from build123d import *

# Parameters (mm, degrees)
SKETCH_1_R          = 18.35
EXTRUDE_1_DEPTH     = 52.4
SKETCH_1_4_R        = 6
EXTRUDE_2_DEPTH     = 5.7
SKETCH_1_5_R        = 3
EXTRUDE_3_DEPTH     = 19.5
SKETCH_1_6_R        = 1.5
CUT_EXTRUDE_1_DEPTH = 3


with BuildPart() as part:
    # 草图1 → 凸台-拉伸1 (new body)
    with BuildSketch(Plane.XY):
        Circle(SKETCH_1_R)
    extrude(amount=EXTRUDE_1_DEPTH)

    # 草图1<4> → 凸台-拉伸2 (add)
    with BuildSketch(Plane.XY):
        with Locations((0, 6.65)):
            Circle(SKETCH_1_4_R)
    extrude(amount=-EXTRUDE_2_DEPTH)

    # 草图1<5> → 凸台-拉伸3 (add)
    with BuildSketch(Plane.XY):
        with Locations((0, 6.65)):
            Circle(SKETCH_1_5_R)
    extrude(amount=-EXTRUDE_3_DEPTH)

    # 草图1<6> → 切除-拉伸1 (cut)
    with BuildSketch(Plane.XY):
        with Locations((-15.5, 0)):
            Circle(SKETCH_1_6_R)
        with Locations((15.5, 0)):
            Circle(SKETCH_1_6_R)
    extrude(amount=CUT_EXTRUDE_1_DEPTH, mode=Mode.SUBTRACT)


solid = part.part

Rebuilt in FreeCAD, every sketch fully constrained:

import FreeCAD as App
import Part
import Sketcher

doc = App.newDocument("Part")
params = doc.addObject("Spreadsheet::Sheet", "Params")
for row, (alias, value) in enumerate([
    ("sketch1_diameter", "36.7 mm"),
    ("pad1_length", "52.4 mm"),
    ("sketch2_diameter", "12 mm"),
    ("pad2_length", "5.7 mm"),
    ("sketch3_diameter", "6 mm"),
    ("pad3_length", "19.5 mm"),
    ("sketch4_diameter", "3 mm"),
    ("pocket1_length", "3 mm"),
], start=1):
    params.set(f"A{row}", alias)
    params.set(f"B{row}", "=" + value)
    params.setAlias(f"B{row}", alias)

body = doc.addObject("PartDesign::Body", "Body")

# Sketch on XY plane
sketch1 = body.newObject("Sketcher::SketchObject", "Sketch")
sketch1.AttachmentSupport = (doc.getObject("XY_Plane"), [""])
sketch1.MapMode = "FlatFace"
sketch1.addGeometry(Part.Circle(App.Vector(0, 0, 0), App.Vector(0, 0, 1), 18), False)
sketch1.addConstraint([
    Sketcher.Constraint("Coincident", 0, 3, -1, 1),
    Sketcher.Constraint("Diameter", 0, 36.7),
])
sketch1.setExpression("Constraints[1]", "Params.sketch1_diameter")
pad1 = body.newObject("PartDesign::Pad", "Pad")
pad1.Profile = sketch1
pad1.setExpression("Length", "Params.pad1_length")

# Sketch on XY plane
sketch2 = body.newObject("Sketcher::SketchObject", "Sketch001")
sketch2.AttachmentSupport = (doc.getObject("XY_Plane"), [""])
sketch2.MapMode = "FlatFace"
sketch2.addGeometry(Part.Circle(App.Vector(0, 7, 0), App.Vector(0, 0, 1), 6), False)
sketch2.addConstraint([
    Sketcher.Constraint("PointOnObject", 0, 3, -2),
    Sketcher.Constraint("Diameter", 0, 12.0),
    Sketcher.Constraint("DistanceY", -1, 1, 0, 3, 6.65),
])
sketch2.setExpression("Constraints[1]", "Params.sketch2_diameter")
pad2 = body.newObject("PartDesign::Pad", "Pad001")
pad2.Profile = sketch2
pad2.setExpression("Length", "Params.pad2_length")
pad2.Reversed = True

# Sketch on XY plane
sketch3 = body.newObject("Sketcher::SketchObject", "Sketch002")
sketch3.AttachmentSupport = (doc.getObject("XY_Plane"), [""])
sketch3.MapMode = "FlatFace"
sketch3.addGeometry(Part.Circle(App.Vector(0, 6.7, 0), App.Vector(0, 0, 1), 3), False)
sketch3.addConstraint([
    Sketcher.Constraint("PointOnObject", 0, 3, -2),
    Sketcher.Constraint("Diameter", 0, 6.0),
    Sketcher.Constraint("DistanceY", -1, 1, 0, 3, 6.65),
])
sketch3.setExpression("Constraints[1]", "Params.sketch3_diameter")
pad3 = body.newObject("PartDesign::Pad", "Pad002")
pad3.Profile = sketch3
pad3.setExpression("Length", "Params.pad3_length")
pad3.Reversed = True

# Sketch on XY plane
sketch4 = body.newObject("Sketcher::SketchObject", "Sketch003")
sketch4.AttachmentSupport = (doc.getObject("XY_Plane"), [""])
sketch4.MapMode = "FlatFace"
sketch4.addGeometry([
    Part.Circle(App.Vector(-15.5, 0, 0), App.Vector(0, 0, 1), 1.5),
    Part.Circle(App.Vector(15.5, 0, 0), App.Vector(0, 0, 1), 1.5),
], False)
sketch4.addConstraint([
    Sketcher.Constraint("Equal", 0, 1),
    Sketcher.Constraint("Symmetric", 0, 3, 1, 3, -1, 1),
    Sketcher.Constraint("PointOnObject", 0, 3, -1),
    Sketcher.Constraint("Diameter", 0, 3.0),
    Sketcher.Constraint("DistanceX", 0, 3, 1, 3, 31.0),
])
sketch4.setExpression("Constraints[3]", "Params.sketch4_diameter")
pocket1 = body.newObject("PartDesign::Pocket", "Pocket")
pocket1.Profile = sketch4
pocket1.setExpression("Length", "Params.pocket1_length")
pocket1.Reversed = True

doc.recompute()
